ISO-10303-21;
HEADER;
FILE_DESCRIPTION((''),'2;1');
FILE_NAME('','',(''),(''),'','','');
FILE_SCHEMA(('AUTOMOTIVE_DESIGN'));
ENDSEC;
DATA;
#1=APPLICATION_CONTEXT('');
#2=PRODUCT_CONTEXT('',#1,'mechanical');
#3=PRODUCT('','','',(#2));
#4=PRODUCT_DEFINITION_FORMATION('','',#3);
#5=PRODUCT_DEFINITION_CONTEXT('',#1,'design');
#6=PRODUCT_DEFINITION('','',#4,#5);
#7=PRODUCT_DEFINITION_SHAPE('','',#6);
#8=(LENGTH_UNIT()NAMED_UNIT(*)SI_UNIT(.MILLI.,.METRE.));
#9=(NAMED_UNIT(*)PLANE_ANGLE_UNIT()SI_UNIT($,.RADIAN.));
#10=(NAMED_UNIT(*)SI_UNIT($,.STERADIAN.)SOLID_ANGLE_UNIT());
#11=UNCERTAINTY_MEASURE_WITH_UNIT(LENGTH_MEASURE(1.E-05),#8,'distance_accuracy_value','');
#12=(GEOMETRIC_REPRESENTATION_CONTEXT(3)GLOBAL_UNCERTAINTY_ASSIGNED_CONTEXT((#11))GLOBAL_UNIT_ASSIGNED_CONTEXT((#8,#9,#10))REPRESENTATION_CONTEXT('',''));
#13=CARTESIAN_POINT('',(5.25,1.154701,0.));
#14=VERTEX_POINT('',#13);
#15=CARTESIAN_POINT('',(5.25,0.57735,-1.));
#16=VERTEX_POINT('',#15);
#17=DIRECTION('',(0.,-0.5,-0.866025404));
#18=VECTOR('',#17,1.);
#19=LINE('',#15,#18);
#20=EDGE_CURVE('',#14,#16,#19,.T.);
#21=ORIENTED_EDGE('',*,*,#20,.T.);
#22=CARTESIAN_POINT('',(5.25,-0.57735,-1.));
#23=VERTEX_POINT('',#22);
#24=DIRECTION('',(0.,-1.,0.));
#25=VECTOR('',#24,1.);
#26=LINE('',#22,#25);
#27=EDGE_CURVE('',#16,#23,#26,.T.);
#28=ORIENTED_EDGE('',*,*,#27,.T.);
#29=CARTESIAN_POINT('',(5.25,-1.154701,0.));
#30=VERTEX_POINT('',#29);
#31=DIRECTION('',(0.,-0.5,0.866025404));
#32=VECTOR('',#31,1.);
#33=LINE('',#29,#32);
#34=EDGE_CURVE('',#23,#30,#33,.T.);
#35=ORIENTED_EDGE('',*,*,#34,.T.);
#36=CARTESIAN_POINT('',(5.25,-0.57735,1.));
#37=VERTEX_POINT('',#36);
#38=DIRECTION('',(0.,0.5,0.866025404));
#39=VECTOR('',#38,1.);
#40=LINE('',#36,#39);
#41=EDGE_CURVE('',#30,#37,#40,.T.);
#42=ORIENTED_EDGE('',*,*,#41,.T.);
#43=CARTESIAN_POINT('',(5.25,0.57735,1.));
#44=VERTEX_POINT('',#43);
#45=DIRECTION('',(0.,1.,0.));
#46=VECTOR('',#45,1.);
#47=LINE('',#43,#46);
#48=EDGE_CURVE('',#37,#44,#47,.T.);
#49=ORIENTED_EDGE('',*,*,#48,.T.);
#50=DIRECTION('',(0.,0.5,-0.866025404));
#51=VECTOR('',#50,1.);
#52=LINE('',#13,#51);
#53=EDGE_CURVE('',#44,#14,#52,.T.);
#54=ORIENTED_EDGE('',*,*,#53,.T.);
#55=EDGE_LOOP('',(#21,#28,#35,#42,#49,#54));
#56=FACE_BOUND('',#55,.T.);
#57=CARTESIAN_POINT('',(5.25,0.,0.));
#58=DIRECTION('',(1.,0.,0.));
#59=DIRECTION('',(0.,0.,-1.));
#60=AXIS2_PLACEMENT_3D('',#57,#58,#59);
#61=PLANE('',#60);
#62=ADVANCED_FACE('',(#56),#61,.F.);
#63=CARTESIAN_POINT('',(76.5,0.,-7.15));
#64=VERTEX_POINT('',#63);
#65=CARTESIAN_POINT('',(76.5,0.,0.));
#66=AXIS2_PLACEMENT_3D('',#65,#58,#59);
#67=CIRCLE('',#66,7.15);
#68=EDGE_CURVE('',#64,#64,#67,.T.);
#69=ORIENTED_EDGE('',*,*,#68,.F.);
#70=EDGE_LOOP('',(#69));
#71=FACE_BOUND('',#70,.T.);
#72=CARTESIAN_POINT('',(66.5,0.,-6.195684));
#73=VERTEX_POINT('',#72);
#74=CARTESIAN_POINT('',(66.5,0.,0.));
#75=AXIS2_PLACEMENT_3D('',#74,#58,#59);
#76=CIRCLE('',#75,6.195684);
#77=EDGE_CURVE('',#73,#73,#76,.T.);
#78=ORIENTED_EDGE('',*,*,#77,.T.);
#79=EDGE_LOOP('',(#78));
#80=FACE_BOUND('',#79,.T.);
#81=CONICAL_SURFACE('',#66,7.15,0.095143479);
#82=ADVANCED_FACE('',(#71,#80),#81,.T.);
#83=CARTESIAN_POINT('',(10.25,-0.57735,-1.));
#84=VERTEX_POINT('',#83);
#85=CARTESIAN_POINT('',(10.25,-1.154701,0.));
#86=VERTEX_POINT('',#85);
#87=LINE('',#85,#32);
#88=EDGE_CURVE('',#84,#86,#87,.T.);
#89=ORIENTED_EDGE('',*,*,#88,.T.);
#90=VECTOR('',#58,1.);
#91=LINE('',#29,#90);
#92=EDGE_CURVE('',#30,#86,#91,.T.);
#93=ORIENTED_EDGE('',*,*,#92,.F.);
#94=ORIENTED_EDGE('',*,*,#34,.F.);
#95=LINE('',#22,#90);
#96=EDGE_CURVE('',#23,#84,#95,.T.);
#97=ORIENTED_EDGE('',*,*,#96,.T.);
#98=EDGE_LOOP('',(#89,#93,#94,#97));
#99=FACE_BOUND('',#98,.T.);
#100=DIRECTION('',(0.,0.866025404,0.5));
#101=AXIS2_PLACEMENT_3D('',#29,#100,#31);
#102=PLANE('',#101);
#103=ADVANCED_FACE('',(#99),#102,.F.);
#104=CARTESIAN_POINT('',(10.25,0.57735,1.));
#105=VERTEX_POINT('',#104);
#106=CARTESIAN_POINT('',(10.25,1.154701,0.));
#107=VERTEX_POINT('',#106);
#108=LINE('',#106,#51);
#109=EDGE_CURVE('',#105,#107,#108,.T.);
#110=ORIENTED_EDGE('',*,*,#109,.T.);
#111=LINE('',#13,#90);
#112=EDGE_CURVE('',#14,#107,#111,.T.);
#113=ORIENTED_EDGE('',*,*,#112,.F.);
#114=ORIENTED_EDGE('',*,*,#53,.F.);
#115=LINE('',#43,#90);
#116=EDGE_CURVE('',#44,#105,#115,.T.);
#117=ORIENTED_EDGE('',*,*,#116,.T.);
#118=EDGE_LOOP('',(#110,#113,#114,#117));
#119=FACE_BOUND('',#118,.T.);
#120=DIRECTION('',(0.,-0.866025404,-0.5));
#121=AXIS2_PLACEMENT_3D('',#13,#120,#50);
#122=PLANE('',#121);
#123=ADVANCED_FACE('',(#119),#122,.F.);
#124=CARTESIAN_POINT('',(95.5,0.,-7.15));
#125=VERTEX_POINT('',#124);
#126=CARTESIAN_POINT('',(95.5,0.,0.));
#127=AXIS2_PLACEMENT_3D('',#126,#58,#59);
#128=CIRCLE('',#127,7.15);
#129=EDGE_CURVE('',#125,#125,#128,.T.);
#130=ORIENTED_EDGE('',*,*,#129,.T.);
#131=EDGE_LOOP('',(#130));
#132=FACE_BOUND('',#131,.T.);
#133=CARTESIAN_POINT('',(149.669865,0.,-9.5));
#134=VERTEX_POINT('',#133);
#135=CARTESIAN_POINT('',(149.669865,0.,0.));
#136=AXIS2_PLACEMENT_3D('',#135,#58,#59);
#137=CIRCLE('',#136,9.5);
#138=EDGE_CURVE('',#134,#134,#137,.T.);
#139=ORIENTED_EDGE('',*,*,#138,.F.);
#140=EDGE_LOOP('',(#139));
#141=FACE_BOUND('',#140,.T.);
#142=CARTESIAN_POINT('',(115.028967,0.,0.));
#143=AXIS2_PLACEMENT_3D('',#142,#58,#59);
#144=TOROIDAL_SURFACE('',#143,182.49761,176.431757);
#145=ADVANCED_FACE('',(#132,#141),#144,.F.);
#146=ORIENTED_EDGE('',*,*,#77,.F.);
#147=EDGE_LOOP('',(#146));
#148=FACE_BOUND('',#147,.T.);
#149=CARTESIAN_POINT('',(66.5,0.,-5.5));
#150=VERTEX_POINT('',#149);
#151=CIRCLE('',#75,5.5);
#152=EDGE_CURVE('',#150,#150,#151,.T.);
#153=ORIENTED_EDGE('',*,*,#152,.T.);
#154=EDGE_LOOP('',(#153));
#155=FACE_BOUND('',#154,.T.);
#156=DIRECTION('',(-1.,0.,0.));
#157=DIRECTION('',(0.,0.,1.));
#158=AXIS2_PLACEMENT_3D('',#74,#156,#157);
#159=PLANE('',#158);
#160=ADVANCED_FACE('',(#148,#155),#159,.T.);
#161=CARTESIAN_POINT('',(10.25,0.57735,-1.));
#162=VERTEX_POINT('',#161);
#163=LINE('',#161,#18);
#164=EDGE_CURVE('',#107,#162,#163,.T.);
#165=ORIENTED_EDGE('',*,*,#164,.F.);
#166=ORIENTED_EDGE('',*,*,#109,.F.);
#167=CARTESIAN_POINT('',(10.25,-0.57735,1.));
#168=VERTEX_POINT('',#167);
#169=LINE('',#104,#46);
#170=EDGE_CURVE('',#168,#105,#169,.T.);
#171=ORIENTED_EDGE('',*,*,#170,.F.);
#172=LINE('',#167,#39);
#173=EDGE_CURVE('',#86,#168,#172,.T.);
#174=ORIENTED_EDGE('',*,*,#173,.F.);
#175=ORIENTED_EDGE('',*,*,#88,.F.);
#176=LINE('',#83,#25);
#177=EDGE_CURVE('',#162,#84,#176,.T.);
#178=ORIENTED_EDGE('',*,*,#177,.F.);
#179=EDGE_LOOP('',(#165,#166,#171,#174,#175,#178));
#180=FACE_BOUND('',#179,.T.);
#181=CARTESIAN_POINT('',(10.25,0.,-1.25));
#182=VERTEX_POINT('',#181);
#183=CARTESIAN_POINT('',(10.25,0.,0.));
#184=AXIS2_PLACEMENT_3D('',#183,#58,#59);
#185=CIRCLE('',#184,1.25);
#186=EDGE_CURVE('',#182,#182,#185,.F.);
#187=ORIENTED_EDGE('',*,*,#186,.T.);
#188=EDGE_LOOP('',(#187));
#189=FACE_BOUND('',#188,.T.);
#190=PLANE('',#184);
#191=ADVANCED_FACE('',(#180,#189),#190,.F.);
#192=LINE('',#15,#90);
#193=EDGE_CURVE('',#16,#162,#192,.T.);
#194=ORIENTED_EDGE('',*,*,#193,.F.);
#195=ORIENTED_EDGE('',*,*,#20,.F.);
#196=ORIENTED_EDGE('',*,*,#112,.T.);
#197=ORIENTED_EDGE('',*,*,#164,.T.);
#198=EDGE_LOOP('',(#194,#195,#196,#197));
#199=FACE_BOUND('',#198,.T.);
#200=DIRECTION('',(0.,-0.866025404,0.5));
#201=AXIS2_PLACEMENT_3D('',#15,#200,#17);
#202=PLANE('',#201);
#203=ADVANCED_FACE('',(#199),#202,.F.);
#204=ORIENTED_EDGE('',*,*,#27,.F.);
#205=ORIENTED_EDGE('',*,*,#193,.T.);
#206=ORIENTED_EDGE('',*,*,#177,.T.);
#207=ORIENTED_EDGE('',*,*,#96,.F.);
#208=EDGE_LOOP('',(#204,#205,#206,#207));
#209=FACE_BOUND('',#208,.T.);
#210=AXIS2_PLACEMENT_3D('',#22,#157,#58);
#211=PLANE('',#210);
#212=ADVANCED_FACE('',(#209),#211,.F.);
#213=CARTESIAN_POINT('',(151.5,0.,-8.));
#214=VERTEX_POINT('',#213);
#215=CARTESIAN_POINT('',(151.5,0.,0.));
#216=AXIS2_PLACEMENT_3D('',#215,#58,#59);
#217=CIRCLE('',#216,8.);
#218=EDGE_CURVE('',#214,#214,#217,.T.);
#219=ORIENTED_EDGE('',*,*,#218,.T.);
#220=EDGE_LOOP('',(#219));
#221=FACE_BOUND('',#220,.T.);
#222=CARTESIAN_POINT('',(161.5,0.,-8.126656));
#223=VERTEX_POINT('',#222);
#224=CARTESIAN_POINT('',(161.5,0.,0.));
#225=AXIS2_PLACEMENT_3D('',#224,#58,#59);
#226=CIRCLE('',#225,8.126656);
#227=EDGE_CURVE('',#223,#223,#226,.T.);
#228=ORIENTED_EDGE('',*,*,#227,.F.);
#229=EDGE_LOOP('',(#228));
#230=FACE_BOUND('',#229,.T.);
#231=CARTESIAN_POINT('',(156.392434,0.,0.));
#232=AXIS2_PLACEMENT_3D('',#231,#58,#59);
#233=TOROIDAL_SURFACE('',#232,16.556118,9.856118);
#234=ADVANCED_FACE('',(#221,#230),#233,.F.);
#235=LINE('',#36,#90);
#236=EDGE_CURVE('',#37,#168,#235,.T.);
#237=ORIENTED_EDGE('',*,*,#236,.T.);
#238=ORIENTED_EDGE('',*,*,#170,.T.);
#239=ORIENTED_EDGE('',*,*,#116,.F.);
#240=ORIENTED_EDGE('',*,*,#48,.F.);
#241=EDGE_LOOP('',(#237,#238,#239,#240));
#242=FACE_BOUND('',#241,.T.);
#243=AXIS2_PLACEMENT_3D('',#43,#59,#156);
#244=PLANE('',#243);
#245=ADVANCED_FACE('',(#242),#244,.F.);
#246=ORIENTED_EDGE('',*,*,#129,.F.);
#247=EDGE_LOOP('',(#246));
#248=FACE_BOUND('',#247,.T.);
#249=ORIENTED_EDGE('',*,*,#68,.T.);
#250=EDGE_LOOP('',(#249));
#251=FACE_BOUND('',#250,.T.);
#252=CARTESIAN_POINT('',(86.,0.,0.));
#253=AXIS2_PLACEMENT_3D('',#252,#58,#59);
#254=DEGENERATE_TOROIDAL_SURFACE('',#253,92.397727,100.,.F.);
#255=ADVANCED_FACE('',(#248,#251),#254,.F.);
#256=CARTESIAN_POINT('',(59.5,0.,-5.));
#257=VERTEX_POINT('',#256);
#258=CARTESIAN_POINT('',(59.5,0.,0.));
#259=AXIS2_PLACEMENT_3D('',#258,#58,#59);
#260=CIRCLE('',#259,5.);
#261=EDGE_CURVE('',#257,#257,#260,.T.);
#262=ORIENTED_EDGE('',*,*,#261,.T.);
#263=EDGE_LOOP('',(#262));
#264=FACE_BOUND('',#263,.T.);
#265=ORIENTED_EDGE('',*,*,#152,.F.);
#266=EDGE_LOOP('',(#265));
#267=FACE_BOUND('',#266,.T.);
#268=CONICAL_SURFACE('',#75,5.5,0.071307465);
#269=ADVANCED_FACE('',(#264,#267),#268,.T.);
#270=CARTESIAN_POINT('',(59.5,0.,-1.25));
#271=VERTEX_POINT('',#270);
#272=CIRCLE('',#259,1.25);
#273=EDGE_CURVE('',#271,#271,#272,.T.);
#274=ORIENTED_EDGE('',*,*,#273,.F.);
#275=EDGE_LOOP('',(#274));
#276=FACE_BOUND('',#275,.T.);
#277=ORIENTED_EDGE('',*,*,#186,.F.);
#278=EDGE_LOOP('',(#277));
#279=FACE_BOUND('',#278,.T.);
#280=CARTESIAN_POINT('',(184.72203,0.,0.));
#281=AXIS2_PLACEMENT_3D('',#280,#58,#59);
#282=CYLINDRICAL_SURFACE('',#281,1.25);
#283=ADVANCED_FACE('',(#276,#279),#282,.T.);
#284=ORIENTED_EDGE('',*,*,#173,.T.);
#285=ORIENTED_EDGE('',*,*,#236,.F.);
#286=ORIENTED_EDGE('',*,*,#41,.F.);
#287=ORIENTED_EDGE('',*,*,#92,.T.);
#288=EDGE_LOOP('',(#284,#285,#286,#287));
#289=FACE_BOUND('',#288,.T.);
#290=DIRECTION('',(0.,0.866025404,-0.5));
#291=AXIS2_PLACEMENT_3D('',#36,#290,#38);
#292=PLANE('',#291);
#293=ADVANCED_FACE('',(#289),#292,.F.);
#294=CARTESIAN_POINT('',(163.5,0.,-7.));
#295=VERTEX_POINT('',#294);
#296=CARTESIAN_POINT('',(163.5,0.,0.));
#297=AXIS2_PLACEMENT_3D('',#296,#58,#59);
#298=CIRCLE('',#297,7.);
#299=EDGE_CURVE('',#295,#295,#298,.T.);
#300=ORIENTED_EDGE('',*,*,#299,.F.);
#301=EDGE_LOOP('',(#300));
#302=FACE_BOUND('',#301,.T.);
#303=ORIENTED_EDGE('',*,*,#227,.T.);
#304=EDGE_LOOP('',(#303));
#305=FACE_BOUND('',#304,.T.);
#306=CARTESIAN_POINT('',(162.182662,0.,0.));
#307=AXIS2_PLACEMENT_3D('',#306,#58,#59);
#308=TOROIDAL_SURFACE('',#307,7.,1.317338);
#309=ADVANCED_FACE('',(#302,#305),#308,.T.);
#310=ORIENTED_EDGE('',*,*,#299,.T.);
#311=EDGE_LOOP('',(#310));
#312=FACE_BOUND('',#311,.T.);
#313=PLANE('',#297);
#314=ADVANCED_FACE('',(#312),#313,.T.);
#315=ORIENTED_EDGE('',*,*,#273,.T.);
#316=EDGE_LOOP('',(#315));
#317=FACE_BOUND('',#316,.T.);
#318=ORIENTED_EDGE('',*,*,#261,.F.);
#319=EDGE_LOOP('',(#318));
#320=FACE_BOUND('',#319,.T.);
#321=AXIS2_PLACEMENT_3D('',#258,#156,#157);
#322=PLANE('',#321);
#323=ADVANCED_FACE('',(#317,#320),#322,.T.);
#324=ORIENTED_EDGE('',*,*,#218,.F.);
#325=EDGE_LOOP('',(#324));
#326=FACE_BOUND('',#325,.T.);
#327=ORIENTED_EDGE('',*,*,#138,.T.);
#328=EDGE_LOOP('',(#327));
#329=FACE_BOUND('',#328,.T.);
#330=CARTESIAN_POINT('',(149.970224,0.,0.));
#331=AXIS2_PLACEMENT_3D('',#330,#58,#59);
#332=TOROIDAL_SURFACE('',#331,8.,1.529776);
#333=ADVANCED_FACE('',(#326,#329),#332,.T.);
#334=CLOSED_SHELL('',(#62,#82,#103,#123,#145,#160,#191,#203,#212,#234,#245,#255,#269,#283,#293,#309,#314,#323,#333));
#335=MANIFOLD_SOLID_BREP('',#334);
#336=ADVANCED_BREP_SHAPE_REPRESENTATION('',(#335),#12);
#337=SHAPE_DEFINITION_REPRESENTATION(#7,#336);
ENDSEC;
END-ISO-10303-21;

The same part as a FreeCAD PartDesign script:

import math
import FreeCAD as App
import Part
import Sketcher

V = App.Vector
Q = App.Units.Quantity


def add_polygon(sketch, points):
    """Adds a closed chain of lines whose ends are joined by coincident constraints."""
    first, n = sketch.GeometryCount, len(points)
    for a, b in zip(points, points[1:] + points[:1]):
        sketch.addGeometry(Part.LineSegment(App.Vector(*a, 0), App.Vector(*b, 0)), False)
    for i in range(n):
        sketch.addConstraint(Sketcher.Constraint("Coincident", first + i, 2, first + (i + 1) % n, 1))

doc = App.newDocument("Part")
body = doc.addObject("PartDesign::Body", "Body")

# Sketch on XY plane
sketch1 = doc.addObject("Sketcher::SketchObject", "Sketch")
body.addObject(sketch1)
sketch1.AttachmentSupport = (doc.XY_Plane, [""])
sketch1.MapMode = "FlatFace"
add_polygon(sketch1, [(5, 1.2), (5, 0), (59.5, 0), (59.5, 1.2)])  # lines 0-3
sketch1.addConstraint([
    Sketcher.Constraint("Vertical", 0),
    Sketcher.Constraint("Horizontal", 1),
    Sketcher.Constraint("Vertical", 2),
    Sketcher.Constraint("Horizontal", 3),
    Sketcher.Constraint("PointOnObject", 0, 2, -1),
    Sketcher.Constraint("DistanceX", 1, 1, 1, 2, 54.5),
    Sketcher.Constraint("DistanceX", -1, 1, 0, 2, 5.0),
    Sketcher.Constraint("DistanceY", 0, 2, 0, 1, 1.25),
])
revolution = doc.addObject("PartDesign::Revolution", "Revolution")
body.addObject(revolution)
revolution.Profile = sketch1
revolution.ReferenceAxis = (sketch1, ["H_Axis"])
revolution.Angle = 360

# Sketch on YZ plane
sketch2 = doc.addObject("Sketcher::SketchObject", "Sketch001")
body.addObject(sketch2)
sketch2.AttachmentSupport = (doc.YZ_Plane, [""])
sketch2.MapMode = "FlatFace"
sketch2.AttachmentOffset = App.Placement(V(0, 0, 5), App.Rotation())
add_polygon(sketch2, [(3.2, 0), (1.6, -2.8), (-1.6, -2.8), (-3.2, 0), (-1.6, 2.8), (1.6, 2.8)])  # lines 0-5
sketch2.addConstraint([
    Sketcher.Constraint("Horizontal", 1),
    Sketcher.Constraint("Horizontal", 4),
    Sketcher.Constraint("Symmetric", 0, 2, 3, 2, -1, 1),
    Sketcher.Constraint("Symmetric", 2, 2, 5, 2, -1, 1),
    Sketcher.Constraint("PointOnObject", 2, 2, -1),
    Sketcher.Constraint("Parallel", 2, 5),
    Sketcher.Constraint("Vertical", 1, 2, 3, 2),
    Sketcher.Constraint("Angle", 0, Q("-120 deg")),
    Sketcher.Constraint("DistanceY", 0, 2, -1, 1, 2.8),
    Sketcher.Constraint("DistanceX", 1, 2, 1, 1, 3.233162),
])
pocket1 = doc.addObject("PartDesign::Pocket", "Pocket")
body.addObject(pocket1)
pocket1.Profile = sketch2
pocket1.Length = 5.25
pocket1.Reversed = True

# Sketch on XY plane
sketch3 = doc.addObject("Sketcher::SketchObject", "Sketch002")
body.addObject(sketch3)
sketch3.AttachmentSupport = (doc.XY_Plane, [""])
sketch3.MapMode = "FlatFace"
add_polygon(sketch3, [(60, 5), (60, 0), (66, 0), (66, 6)])  # lines 0-3
sketch3.addConstraint([
    Sketcher.Constraint("Vertical", 0),
    Sketcher.Constraint("Horizontal", 1),
    Sketcher.Constraint("Vertical", 2),
    Sketcher.Constraint("PointOnObject", 0, 2, -1),
    Sketcher.Constraint("DistanceX", 1, 1, 1, 2, 7.0),
    Sketcher.Constraint("DistanceY", 0, 2, 0, 1, 5.0),
    Sketcher.Constraint("DistanceY", 2, 1, 2, 2, 5.5),
    Sketcher.Constraint("DistanceX", -1, 1, 0, 2, 59.5),
])
revolution2 = doc.addObject("PartDesign::Revolution", "Revolution001")
body.addObject(revolution2)
revolution2.Profile = sketch3
revolution2.ReferenceAxis = (sketch3, ["H_Axis"])
revolution2.Angle = 360

# Sketch on XY plane
sketch4 = doc.addObject("Sketcher::SketchObject", "Sketch003")
body.addObject(sketch4)
sketch4.AttachmentSupport = (doc.XY_Plane, [""])
sketch4.MapMode = "FlatFace"
sketch4.addGeometry([
    Part.LineSegment(V(76, 7, 0), V(66, 6, 0)),  # 0
    Part.LineSegment(V(66, 6, 0), V(66, 0, 0)),  # 1
    Part.LineSegment(V(66, 0, 0), V(96, 0, 0)),  # 2
    Part.LineSegment(V(96, 0, 0), V(96, 7, 0)),  # 3
    Part.ArcOfCircle(Part.Circle(V(86, -92, 0), V(0, 0, 1), 100), math.radians(84.55), math.radians(95.45)),  # 4
], False)
sketch4.addConstraint([
    Sketcher.Constraint("Coincident", 0, 2, 1, 1),
    Sketcher.Constraint("Coincident", 1, 2, 2, 1),
    Sketcher.Constraint("Coincident", 2, 2, 3, 1),
    Sketcher.Constraint("Coincident", 3, 2, 4, 1),
    Sketcher.Constraint("Tangent", 4, 2, 0, 1),
    Sketcher.Constraint("Vertical", 1),
    Sketcher.Constraint("Horizontal", 2),
    Sketcher.Constraint("Vertical", 3),
    Sketcher.Constraint("PointOnObject", 1, 2, -1),
    Sketcher.Constraint("Horizontal", 3, 2, 4, 2),
    Sketcher.Constraint("Radius", 4, 100.0),
    Sketcher.Constraint("DistanceX", 2, 1, 2, 2, 29.0),
    Sketcher.Constraint("DistanceX", -1, 1, 4, 3, 86.0),
    Sketcher.Constraint("DistanceX", 0, 2, 4, 2, 10.0),
    Sketcher.Constraint("DistanceY", 3, 1, 3, 2, 7.15),
])
revolution3 = doc.addObject("PartDesign::Revolution", "Revolution002")
body.addObject(revolution3)
revolution3.Profile = sketch4
revolution3.ReferenceAxis = (sketch4, ["H_Axis"])
revolution3.Angle = 360

# Sketch on XY plane
sketch5 = doc.addObject("Sketcher::SketchObject", "Sketch004")
body.addObject(sketch5)
sketch5.AttachmentSupport = (doc.XY_Plane, [""])
sketch5.MapMode = "FlatFace"
sketch5.addGeometry([
    Part.LineSegment(V(151.5, 0, 0), V(151.5, 8, 0)),  # 0
    Part.ArcOfCircle(Part.Circle(V(150, 8, 0), V(0, 0, 1), 1.5), math.radians(0), math.radians(101)),  # 1
    Part.ArcOfCircle(Part.Circle(V(115, 182.5, 0), V(0, 0, 1), 176.4), math.radians(-96.36), math.radians(-78.68)),  # 2
    Part.LineSegment(V(95.5, 7.2, 0), V(95.5, 0, 0)),  # 3
    Part.LineSegment(V(95.5, 0, 0), V(151.5, 0, 0)),  # 4
], False)
sketch5.addConstraint([
    Sketcher.Constraint("Tangent", 0, 2, 1, 1),
    Sketcher.Constraint("Tangent", 1, 2, 2, 2),
    Sketcher.Constraint("Coincident", 2, 1, 3, 1),
    Sketcher.Constraint("Coincident", 3, 2, 4, 1),
    Sketcher.Constraint("Coincident", 4, 2, 0, 1),
    Sketcher.Constraint("Vertical", 0),
    Sketcher.Constraint("Vertical", 3),
    Sketcher.Constraint("Horizontal", 4),
    Sketcher.Constraint("PointOnObject", 3, 2, -1),
    Sketcher.Constraint("DistanceX", 4, 1, 4, 2, 56.0),
    Sketcher.Constraint("DistanceY", 0, 1, 0, 2, 8.0),
    Sketcher.Constraint("DistanceY", 3, 2, 3, 1, 7.15),
    Sketcher.Constraint("DistanceX", -1, 1, 0, 2, 151.5),
    Sketcher.Constraint("DistanceY", -1, 1, 1, 2, 9.5),
    Sketcher.Constraint("Radius", 2, 176.431757),
])
revolution4 = doc.addObject("PartDesign::Revolution", "Revolution003")
body.addObject(revolution4)
revolution4.Profile = sketch5
revolution4.ReferenceAxis = (sketch5, ["H_Axis"])
revolution4.Angle = 360

# Sketch on XY plane
sketch6 = doc.addObject("Sketcher::SketchObject", "Sketch005")
body.addObject(sketch6)
sketch6.AttachmentSupport = (doc.XY_Plane, [""])
sketch6.MapMode = "FlatFace"
sketch6.addGeometry([
    Part.LineSegment(V(151.5, 8, 0), V(151.5, 0, 0)),  # 0
    Part.LineSegment(V(151.5, 0, 0), V(163.5, 0, 0)),  # 1
    Part.LineSegment(V(163.5, 0, 0), V(163.5, 7, 0)),  # 2
    Part.ArcOfCircle(Part.Circle(V(162.2, 7, 0), V(0, 0, 1), 1.3), math.radians(0), math.radians(121)),  # 3
    Part.ArcOfCircle(Part.Circle(V(156.4, 16.6, 0), V(0, 0, 1), 9.9), math.radians(-120), math.radians(-59)),  # 4
], False)
sketch6.addConstraint([
    Sketcher.Constraint("Coincident", 0, 2, 1, 1),
    Sketcher.Constraint("Coincident", 1, 2, 2, 1),
    Sketcher.Constraint("Tangent", 2, 2, 3, 1),
    Sketcher.Constraint("Tangent", 3, 2, 4, 2),
    Sketcher.Constraint("Coincident", 4, 1, 0, 1),
    Sketcher.Constraint("Vertical", 0),
    Sketcher.Constraint("Horizontal", 1),
    Sketcher.Constraint("Vertical", 2),
    Sketcher.Constraint("PointOnObject", 0, 2, -1),
    Sketcher.Constraint("DistanceX", 1, 1, 1, 2, 12.0),
    Sketcher.Constraint("DistanceY", 0, 2, 0, 1, 8.0),
    Sketcher.Constraint("DistanceY", 2, 1, 2, 2, 7.0),
    Sketcher.Constraint("DistanceX", 3, 2, 2, 2, 2.0),
    Sketcher.Constraint("DistanceX", -1, 1, 0, 2, 151.5),
    Sketcher.Constraint("Radius", 3, 1.317338),
])
revolution5 = doc.addObject("PartDesign::Revolution", "Revolution004")
body.addObject(revolution5)
revolution5.Profile = sketch6
revolution5.ReferenceAxis = (sketch6, ["H_Axis"])
revolution5.Angle = 360

# Sketch on YZ plane
sketch7 = doc.addObject("Sketcher::SketchObject", "Sketch006")
body.addObject(sketch7)
sketch7.AttachmentSupport = (doc.YZ_Plane, [""])
sketch7.MapMode = "FlatFace"
sketch7.AttachmentOffset = App.Placement(V(0, 0, 10.25), App.Rotation())
add_polygon(sketch7, [(1.2, 0), (0.6, -1), (-0.6, -1), (-1.2, 0), (-0.6, 1), (0.6, 1)])  # lines 0-5
sketch7.addConstraint([
    Sketcher.Constraint("Horizontal", 1),
    Sketcher.Constraint("Horizontal", 4),
    Sketcher.Constraint("Symmetric", 0, 2, 3, 2, -1, 1),
    Sketcher.Constraint("Symmetric", 2, 2, 5, 2, -1, 1),
    Sketcher.Constraint("PointOnObject", 2, 2, -1),
    Sketcher.Constraint("Parallel", 2, 5),
    Sketcher.Constraint("Vertical", 1, 2, 3, 2),
    Sketcher.Constraint("Angle", 0, Q("-120 deg")),
    Sketcher.Constraint("DistanceY", 0, 2, -1, 1, 1.0),
    Sketcher.Constraint("DistanceX", 1, 2, 1, 1, 1.154701),
])
pad1 = doc.addObject("PartDesign::Pad", "Pad")
body.addObject(pad1)
pad1.Profile = sketch7
pad1.Length = 5
pad1.Reversed = True

doc.recompute()
